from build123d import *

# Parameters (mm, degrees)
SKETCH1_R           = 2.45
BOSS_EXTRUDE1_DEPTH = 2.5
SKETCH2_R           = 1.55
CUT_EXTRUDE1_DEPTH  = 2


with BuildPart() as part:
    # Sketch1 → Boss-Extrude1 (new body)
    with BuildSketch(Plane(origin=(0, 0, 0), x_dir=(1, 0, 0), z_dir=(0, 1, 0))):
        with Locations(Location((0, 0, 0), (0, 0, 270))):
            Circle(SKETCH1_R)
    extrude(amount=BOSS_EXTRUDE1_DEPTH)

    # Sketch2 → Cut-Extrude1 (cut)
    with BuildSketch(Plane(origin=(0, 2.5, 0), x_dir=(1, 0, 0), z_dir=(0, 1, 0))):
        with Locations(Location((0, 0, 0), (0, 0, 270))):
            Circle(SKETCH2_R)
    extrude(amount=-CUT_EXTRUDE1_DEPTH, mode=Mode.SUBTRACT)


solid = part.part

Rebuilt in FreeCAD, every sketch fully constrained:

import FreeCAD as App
import Part
import Sketcher
Q = App.Units.Quantity

doc = App.newDocument("Part")
body = doc.addObject("PartDesign::Body", "Body")

# Sketch on XZ plane
sketch1 = body.newObject("Sketcher::SketchObject", "Sketch")
sketch1.AttachmentSupport = (doc.getObject("XZ_Plane"), [""])
sketch1.MapMode = "FlatFace"
sketch1.addGeometry(Part.Circle(App.Vector(0, 0, 0), App.Vector(0, 0, 1), 2.5), False)
sketch1.addConstraint([
    Sketcher.Constraint("Coincident", 0, 3, -1, 1),
    Sketcher.Constraint("Diameter", 0, Q("4.9 mm")),
])
pad1 = body.newObject("PartDesign::Pad", "Pad")
pad1.Profile = sketch1
pad1.Length = 2.5
pad1.Reversed = True

# Sketch on XZ plane
sketch2 = body.newObject("Sketcher::SketchObject", "Sketch001")
sketch2.AttachmentSupport = (doc.getObject("XZ_Plane"), [""])
sketch2.MapMode = "FlatFace"
sketch2.AttachmentOffset = App.Placement(App.Vector(0, 0, -2.5), App.Rotation())
sketch2.addGeometry(Part.Circle(App.Vector(0, 0, 0), App.Vector(0, 0, 1), 1.6), False)
sketch2.addConstraint([
    Sketcher.Constraint("Coincident", 0, 3, -1, 1),
    Sketcher.Constraint("Diameter", 0, Q("3.1 mm")),
])
pocket1 = body.newObject("PartDesign::Pocket", "Pocket")
pocket1.Profile = sketch2
pocket1.Length = 2
pocket1.Reversed = True

doc.recompute()
